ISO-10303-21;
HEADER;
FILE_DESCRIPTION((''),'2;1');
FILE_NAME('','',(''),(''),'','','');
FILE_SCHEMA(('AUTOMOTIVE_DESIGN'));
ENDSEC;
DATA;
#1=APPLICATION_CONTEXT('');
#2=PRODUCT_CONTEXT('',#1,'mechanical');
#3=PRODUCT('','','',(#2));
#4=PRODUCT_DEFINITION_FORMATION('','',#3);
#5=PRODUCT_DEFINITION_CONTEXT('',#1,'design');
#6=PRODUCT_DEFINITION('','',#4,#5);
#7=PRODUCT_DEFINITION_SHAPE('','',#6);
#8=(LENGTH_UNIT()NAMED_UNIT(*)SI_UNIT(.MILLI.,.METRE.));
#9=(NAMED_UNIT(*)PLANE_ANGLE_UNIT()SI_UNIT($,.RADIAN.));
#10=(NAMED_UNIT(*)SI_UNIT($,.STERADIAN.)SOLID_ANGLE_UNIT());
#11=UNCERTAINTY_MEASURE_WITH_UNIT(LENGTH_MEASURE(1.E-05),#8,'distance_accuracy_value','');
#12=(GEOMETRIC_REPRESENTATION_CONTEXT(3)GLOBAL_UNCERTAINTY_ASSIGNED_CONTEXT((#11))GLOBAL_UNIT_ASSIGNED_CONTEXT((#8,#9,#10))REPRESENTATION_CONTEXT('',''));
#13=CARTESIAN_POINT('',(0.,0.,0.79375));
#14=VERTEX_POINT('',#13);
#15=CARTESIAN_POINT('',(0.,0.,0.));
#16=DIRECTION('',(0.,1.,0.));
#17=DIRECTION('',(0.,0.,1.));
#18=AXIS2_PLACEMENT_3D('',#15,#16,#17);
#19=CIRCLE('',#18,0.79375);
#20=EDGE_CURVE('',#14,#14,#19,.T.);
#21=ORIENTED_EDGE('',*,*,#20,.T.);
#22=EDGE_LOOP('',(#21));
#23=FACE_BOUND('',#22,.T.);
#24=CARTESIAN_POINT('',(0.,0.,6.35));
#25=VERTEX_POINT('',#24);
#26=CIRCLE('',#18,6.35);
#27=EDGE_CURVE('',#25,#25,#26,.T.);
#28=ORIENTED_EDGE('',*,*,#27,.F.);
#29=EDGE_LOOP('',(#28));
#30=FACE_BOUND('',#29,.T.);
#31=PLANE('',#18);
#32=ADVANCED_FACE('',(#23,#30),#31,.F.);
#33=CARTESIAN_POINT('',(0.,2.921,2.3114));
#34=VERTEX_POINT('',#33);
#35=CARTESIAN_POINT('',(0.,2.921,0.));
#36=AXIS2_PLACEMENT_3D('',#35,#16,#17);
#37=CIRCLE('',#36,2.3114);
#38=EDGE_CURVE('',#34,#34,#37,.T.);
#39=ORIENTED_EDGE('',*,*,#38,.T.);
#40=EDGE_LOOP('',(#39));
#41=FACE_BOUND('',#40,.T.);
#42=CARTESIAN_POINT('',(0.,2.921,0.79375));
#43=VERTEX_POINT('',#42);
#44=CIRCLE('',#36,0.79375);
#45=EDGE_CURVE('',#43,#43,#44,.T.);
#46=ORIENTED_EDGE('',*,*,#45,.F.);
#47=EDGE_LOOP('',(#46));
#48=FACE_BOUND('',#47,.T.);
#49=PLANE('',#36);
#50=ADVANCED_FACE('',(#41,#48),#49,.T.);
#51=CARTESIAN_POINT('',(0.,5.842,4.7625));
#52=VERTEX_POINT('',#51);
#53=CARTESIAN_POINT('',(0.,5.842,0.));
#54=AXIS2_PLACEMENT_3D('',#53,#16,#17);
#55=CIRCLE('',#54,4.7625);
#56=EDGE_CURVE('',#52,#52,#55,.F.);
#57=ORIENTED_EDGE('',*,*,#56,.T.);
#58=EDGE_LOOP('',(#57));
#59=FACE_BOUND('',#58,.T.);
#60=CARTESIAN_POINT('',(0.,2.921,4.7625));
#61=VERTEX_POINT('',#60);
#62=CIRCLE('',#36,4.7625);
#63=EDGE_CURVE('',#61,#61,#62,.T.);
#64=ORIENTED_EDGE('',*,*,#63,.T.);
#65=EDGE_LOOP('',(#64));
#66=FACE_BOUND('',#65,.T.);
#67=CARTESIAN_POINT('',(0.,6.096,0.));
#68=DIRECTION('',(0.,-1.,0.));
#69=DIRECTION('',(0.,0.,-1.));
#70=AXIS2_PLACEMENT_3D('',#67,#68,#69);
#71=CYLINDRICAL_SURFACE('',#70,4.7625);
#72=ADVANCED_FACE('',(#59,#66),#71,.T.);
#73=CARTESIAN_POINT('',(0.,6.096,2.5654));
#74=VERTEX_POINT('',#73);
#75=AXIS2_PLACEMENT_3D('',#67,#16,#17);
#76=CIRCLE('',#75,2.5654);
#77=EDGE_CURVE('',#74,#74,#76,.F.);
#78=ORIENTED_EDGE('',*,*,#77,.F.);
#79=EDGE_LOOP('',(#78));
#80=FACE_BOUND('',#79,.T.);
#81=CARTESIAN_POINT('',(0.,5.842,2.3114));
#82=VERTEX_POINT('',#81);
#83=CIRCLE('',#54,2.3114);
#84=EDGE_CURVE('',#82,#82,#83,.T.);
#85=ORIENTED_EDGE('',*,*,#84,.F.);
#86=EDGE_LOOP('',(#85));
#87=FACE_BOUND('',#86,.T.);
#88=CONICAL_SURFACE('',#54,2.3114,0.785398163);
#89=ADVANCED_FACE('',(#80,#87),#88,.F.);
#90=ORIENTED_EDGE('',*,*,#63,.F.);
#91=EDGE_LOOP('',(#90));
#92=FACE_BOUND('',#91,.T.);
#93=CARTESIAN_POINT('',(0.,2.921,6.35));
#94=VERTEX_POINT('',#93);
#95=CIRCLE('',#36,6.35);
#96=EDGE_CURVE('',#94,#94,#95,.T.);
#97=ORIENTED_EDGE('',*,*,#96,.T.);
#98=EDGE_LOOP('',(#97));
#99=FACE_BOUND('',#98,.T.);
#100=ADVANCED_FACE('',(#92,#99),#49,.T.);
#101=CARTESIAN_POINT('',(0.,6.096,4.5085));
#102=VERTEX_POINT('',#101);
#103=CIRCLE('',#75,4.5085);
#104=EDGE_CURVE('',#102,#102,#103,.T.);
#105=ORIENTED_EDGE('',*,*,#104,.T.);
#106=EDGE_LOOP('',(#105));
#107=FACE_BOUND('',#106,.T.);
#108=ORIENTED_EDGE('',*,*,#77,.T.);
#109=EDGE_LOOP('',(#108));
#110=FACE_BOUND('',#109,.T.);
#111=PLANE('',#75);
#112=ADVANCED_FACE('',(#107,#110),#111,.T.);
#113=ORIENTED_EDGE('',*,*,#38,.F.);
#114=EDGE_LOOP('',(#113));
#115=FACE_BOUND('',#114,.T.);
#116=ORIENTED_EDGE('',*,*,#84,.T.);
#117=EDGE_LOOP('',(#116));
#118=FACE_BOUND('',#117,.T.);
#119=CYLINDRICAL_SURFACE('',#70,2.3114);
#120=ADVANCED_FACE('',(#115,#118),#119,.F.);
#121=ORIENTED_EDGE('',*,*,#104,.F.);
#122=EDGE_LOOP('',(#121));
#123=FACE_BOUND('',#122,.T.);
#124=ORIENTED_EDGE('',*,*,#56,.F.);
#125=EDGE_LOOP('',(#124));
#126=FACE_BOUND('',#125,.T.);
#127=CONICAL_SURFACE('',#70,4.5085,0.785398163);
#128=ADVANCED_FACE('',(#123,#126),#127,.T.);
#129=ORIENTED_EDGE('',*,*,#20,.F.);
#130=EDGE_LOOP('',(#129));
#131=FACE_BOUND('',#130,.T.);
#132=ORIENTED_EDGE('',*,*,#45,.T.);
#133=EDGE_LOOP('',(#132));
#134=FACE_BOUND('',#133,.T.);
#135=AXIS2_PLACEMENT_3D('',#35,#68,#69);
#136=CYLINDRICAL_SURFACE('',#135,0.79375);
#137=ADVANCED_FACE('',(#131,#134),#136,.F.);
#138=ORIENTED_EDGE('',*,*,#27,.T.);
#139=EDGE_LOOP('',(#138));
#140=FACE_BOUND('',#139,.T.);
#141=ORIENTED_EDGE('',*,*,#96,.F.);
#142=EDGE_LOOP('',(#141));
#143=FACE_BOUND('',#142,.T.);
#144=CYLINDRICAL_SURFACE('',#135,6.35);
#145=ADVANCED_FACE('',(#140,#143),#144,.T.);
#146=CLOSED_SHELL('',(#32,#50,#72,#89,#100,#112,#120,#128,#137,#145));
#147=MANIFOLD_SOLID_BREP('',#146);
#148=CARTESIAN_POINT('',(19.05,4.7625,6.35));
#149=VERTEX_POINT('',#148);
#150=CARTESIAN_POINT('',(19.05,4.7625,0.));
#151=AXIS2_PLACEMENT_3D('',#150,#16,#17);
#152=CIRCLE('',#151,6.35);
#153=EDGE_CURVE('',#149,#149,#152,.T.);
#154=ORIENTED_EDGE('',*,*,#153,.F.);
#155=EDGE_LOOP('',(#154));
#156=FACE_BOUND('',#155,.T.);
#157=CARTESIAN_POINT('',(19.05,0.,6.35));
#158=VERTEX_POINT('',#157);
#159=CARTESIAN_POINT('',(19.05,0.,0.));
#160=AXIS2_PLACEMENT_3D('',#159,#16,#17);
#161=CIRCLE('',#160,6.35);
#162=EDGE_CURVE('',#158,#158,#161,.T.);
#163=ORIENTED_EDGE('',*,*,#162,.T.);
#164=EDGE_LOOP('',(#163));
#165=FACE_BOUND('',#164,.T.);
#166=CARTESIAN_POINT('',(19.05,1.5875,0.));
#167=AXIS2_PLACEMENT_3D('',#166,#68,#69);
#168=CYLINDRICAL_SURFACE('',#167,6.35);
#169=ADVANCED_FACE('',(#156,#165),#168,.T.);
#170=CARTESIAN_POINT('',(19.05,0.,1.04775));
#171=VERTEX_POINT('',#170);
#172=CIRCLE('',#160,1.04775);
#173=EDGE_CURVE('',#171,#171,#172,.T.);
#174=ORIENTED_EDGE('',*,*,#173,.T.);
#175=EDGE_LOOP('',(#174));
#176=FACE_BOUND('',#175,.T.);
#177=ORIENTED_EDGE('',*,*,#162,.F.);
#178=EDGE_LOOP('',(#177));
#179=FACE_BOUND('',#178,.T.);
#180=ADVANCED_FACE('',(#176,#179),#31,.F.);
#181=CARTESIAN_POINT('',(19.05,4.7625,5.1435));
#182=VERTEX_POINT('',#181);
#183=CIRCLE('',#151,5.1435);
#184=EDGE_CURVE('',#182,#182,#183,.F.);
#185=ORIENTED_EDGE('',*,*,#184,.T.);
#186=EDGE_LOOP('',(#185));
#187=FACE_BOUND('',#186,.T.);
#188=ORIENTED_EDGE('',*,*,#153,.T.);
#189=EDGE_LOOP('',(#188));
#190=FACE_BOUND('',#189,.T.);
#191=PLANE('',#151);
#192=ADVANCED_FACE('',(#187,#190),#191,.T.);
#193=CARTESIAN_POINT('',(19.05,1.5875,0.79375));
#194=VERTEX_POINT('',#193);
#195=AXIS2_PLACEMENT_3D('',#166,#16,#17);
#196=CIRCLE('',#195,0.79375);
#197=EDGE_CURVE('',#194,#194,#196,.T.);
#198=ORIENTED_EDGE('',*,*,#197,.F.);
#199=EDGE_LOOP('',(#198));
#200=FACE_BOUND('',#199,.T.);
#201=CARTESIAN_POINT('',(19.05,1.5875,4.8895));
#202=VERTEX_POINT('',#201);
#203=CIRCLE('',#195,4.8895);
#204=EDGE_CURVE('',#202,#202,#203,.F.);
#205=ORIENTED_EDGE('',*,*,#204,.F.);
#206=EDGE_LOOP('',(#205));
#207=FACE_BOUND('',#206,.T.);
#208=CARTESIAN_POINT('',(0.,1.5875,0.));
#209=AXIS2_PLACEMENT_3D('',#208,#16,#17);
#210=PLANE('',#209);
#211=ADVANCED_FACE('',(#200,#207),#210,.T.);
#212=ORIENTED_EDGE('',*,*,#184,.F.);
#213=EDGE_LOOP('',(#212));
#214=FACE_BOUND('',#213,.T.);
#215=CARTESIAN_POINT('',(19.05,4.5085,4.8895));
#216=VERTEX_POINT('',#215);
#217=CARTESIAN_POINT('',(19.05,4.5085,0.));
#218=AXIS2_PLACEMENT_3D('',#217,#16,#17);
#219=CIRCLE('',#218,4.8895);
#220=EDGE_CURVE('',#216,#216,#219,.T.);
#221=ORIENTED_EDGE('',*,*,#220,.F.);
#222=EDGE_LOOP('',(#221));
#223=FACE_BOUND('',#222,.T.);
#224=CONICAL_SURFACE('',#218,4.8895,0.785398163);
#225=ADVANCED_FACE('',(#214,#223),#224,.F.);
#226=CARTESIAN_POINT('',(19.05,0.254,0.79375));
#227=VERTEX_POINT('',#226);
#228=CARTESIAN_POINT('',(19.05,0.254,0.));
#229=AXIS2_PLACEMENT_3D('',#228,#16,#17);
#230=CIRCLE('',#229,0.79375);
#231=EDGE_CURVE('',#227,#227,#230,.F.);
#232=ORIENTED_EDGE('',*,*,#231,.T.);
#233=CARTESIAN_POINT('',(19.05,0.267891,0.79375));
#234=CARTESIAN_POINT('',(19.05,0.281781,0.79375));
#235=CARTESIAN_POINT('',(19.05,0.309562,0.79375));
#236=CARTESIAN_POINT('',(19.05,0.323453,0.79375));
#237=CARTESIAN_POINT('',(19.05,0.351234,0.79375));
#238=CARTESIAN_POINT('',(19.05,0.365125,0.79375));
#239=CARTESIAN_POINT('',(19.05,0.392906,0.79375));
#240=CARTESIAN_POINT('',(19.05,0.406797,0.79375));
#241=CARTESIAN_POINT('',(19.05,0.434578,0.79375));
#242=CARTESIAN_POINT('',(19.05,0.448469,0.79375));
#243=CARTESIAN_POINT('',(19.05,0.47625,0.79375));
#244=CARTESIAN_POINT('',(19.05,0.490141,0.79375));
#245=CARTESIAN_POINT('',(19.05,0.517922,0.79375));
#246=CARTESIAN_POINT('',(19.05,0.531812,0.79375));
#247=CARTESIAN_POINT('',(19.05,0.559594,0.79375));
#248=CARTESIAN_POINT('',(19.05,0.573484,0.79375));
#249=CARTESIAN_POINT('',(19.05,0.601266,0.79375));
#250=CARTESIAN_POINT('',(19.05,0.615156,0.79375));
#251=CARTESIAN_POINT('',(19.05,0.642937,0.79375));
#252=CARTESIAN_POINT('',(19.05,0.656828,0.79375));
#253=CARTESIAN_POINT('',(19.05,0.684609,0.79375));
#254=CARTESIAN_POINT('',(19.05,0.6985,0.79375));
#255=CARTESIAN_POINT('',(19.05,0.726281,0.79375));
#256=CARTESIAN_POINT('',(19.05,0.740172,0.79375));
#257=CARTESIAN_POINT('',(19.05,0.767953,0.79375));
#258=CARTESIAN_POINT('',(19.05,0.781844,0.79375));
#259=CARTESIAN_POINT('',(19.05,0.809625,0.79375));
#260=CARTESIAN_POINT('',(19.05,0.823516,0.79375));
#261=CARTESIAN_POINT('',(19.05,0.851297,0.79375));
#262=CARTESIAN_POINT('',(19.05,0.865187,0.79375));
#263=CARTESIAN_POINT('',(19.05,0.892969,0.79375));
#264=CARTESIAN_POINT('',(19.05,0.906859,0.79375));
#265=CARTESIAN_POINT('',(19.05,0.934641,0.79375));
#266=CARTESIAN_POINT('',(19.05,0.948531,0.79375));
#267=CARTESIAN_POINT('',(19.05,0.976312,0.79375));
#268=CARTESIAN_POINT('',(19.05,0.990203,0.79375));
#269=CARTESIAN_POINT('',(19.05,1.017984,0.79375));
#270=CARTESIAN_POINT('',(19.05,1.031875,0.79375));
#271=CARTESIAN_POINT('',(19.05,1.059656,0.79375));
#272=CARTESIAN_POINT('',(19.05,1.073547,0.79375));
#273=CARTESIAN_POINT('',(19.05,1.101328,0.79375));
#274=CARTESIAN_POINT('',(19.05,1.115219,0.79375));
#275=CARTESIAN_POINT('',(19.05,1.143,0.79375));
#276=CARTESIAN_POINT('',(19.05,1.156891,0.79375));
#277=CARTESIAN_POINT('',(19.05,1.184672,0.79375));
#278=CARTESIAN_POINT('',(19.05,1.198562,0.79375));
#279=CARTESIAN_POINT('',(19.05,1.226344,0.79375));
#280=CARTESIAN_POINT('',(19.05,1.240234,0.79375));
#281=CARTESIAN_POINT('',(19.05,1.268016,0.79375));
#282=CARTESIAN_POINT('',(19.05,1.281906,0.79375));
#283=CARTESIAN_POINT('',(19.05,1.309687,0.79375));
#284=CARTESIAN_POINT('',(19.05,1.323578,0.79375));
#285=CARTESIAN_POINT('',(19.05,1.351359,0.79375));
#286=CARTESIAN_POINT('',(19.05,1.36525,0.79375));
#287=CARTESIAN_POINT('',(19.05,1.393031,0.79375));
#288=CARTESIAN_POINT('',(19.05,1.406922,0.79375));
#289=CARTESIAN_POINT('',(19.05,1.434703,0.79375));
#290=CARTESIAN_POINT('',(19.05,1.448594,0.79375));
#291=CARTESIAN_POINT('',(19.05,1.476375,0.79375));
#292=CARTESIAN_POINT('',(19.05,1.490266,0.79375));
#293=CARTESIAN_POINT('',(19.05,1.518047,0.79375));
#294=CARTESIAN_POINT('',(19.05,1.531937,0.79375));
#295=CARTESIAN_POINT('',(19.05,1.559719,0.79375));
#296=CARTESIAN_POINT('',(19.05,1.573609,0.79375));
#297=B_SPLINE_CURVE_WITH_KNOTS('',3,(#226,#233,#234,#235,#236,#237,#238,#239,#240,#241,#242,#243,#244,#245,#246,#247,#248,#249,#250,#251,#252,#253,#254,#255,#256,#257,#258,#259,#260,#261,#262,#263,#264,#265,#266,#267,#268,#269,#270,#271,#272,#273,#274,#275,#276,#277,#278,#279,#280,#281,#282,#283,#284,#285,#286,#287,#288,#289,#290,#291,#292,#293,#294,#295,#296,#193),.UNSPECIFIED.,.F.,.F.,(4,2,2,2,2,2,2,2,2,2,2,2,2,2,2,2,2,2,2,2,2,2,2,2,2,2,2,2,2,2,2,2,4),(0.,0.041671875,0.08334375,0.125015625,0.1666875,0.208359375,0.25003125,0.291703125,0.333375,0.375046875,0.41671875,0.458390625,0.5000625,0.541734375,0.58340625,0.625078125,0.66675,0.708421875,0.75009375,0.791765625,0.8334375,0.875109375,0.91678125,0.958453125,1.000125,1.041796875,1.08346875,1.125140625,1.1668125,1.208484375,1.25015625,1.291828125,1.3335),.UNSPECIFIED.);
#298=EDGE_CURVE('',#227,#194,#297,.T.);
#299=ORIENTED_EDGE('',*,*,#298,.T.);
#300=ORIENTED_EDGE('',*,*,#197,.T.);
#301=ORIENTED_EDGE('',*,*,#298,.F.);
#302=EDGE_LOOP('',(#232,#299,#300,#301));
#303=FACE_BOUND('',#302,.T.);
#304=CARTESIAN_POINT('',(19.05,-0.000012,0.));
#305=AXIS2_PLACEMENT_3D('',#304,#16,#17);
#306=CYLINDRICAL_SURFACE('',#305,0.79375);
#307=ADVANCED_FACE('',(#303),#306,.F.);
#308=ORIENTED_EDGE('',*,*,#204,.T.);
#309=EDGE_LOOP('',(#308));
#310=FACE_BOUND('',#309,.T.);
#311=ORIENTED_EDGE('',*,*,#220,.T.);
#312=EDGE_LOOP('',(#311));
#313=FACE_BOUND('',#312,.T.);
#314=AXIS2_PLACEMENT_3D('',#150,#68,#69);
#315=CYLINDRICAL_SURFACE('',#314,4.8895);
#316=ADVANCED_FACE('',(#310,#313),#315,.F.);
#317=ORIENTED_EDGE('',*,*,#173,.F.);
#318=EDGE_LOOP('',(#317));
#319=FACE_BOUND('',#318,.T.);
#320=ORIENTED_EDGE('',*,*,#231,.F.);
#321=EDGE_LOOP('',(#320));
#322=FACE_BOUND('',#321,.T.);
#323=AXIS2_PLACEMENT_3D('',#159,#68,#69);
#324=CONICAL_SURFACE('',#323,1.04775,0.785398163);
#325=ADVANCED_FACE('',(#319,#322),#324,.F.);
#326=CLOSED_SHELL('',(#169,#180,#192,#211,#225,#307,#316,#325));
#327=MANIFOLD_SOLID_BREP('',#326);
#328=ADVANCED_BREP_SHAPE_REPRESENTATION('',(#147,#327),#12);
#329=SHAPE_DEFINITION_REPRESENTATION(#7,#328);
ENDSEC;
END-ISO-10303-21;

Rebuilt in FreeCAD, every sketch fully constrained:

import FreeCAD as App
import Part
import Sketcher

V = App.Vector
Q = App.Units.Quantity


def edges_at(feature, points):
    """Names of the edges that pass closest to the given points."""
    edges = feature.Shape.Edges
    near = lambda p: min(range(len(edges)), key=lambda i: edges[i].distToShape(Part.Vertex(*p))[0])
    return sorted({f"Edge{near(p) + 1}" for p in points})

doc = App.newDocument("Part")
body = doc.addObject("PartDesign::Body", "Body")

# Sketch on XZ plane
sketch1 = body.newObject("Sketcher::SketchObject", "Sketch")
sketch1.AttachmentSupport = (doc.getObject("XZ_Plane"), [""])
sketch1.MapMode = "FlatFace"
sketch1.addGeometry([
    Part.Circle(V(0, 0, 0), V(0, 0, 1), 6.3),
    Part.Circle(V(0, 0, 0), V(0, 0, 1), 0.8),
], False)
sketch1.addConstraint([
    Sketcher.Constraint("Coincident", 0, 3, -1, 1),
    Sketcher.Constraint("Coincident", 1, 3, -1, 1),
    Sketcher.Constraint("Diameter", 0, Q("0.5 in")),
    Sketcher.Constraint("Diameter", 1, Q("0.0625 in")),
])
pad1 = body.newObject("PartDesign::Pad", "Pad")
pad1.Profile = sketch1
pad1.Length = Q("0.115 in")
pad1.Reversed = True

# Sketch on XZ plane
sketch2 = body.newObject("Sketcher::SketchObject", "Sketch001")
sketch2.AttachmentSupport = (doc.getObject("XZ_Plane"), [""])
sketch2.MapMode = "FlatFace"
sketch2.AttachmentOffset = App.Placement(V(0, 0, -0.115 * 25.4), App.Rotation())
sketch2.addGeometry([
    Part.Circle(V(0, 0, 0), V(0, 0, 1), 4.8),
    Part.Circle(V(0, 0, 0), V(0, 0, 1), 2.3),
], False)
sketch2.addConstraint([
    Sketcher.Constraint("Coincident", 0, 3, -1, 1),
    Sketcher.Constraint("Coincident", 1, 3, -1, 1),
    Sketcher.Constraint("Diameter", 0, Q("0.375 in")),
    Sketcher.Constraint("Diameter", 1, Q("0.182 in")),
])
pad2 = body.newObject("PartDesign::Pad", "Pad001")
pad2.Profile = sketch2
pad2.Length = Q("0.125 in")
pad2.Reversed = True
doc.recompute()

chamfer = body.newObject("PartDesign::Chamfer", "Chamfer")
chamfer.Base = (pad2, edges_at(pad2, [(0, 6.096, -4.763), (0, 6.096, -2.311)]))
chamfer.Size = Q("0.01 in")
body2 = doc.addObject("PartDesign::Body", "Body001")

# Sketch on XZ plane
sketch3 = body2.newObject("Sketcher::SketchObject", "Sketch002")
sketch3.AttachmentSupport = (doc.getObject("XZ_Plane001"), [""])
sketch3.MapMode = "FlatFace"
sketch3.addGeometry(Part.Circle(V(19, 0, 0), V(0, 0, 1), 6), False)
sketch3.addConstraint([
    Sketcher.Constraint("PointOnObject", 0, 3, -1),
    Sketcher.Constraint("Diameter", 0, Q("0.5 in")),
    Sketcher.Constraint("DistanceX", -1, 1, 0, 3, Q("0.75 in")),
])
pad3 = body2.newObject("PartDesign::Pad", "Pad002")
pad3.Profile = sketch3
pad3.Length = Q("0.0625 in")
pad3.Reversed = True

# Sketch on XZ plane
sketch4 = body2.newObject("Sketcher::SketchObject", "Sketch003")
sketch4.AttachmentSupport = (doc.getObject("XZ_Plane001"), [""])
sketch4.MapMode = "FlatFace"
sketch4.AttachmentOffset = App.Placement(V(0, 0, -0.0625 * 25.4), App.Rotation())
sketch4.addGeometry([
    Part.Circle(V(19.1, 0, 0), V(0, 0, 1), 6.3),
    Part.Circle(V(19.1, 0, 0), V(0, 0, 1), 4.9),
], False)
sketch4.addConstraint([
    Sketcher.Constraint("Coincident", 1, 3, 0, 3),
    Sketcher.Constraint("PointOnObject", 0, 3, -1),
    Sketcher.Constraint("Diameter", 0, Q("0.5 in")),
    Sketcher.Constraint("Diameter", 1, Q("0.385 in")),
    Sketcher.Constraint("DistanceX", -1, 1, 0, 3, Q("0.75 in")),
])
pad4 = body2.newObject("PartDesign::Pad", "Pad003")
pad4.Profile = sketch4
pad4.Length = Q("0.125 in")
pad4.Reversed = True

# Sketch on XZ plane
sketch5 = body2.newObject("Sketcher::SketchObject", "Sketch004")
sketch5.AttachmentSupport = (doc.getObject("XZ_Plane001"), [""])
sketch5.MapMode = "FlatFace"
sketch5.addGeometry(Part.Circle(V(19.1, 0, 0), V(0, 0, 1), 0.8), False)
sketch5.addConstraint([
    Sketcher.Constraint("PointOnObject", 0, 3, -1),
    Sketcher.Constraint("Diameter", 0, Q("0.0625 in")),
    Sketcher.Constraint("DistanceX", -1, 1, 0, 3, Q("0.75 in")),
])
pocket1 = body2.newObject("PartDesign::Pocket", "Pocket")
pocket1.Profile = sketch5
pocket1.Type = "ThroughAll"
pocket1.Midplane = True
doc.recompute()

chamfer2 = body2.newObject("PartDesign::Chamfer", "Chamfer001")
chamfer2.Base = (pocket1, edges_at(pocket1, [(19.05, 4.763, -4.889), (19.05, 0, -0.794)]))
chamfer2.Size = Q("0.01 in")

doc.recompute()
